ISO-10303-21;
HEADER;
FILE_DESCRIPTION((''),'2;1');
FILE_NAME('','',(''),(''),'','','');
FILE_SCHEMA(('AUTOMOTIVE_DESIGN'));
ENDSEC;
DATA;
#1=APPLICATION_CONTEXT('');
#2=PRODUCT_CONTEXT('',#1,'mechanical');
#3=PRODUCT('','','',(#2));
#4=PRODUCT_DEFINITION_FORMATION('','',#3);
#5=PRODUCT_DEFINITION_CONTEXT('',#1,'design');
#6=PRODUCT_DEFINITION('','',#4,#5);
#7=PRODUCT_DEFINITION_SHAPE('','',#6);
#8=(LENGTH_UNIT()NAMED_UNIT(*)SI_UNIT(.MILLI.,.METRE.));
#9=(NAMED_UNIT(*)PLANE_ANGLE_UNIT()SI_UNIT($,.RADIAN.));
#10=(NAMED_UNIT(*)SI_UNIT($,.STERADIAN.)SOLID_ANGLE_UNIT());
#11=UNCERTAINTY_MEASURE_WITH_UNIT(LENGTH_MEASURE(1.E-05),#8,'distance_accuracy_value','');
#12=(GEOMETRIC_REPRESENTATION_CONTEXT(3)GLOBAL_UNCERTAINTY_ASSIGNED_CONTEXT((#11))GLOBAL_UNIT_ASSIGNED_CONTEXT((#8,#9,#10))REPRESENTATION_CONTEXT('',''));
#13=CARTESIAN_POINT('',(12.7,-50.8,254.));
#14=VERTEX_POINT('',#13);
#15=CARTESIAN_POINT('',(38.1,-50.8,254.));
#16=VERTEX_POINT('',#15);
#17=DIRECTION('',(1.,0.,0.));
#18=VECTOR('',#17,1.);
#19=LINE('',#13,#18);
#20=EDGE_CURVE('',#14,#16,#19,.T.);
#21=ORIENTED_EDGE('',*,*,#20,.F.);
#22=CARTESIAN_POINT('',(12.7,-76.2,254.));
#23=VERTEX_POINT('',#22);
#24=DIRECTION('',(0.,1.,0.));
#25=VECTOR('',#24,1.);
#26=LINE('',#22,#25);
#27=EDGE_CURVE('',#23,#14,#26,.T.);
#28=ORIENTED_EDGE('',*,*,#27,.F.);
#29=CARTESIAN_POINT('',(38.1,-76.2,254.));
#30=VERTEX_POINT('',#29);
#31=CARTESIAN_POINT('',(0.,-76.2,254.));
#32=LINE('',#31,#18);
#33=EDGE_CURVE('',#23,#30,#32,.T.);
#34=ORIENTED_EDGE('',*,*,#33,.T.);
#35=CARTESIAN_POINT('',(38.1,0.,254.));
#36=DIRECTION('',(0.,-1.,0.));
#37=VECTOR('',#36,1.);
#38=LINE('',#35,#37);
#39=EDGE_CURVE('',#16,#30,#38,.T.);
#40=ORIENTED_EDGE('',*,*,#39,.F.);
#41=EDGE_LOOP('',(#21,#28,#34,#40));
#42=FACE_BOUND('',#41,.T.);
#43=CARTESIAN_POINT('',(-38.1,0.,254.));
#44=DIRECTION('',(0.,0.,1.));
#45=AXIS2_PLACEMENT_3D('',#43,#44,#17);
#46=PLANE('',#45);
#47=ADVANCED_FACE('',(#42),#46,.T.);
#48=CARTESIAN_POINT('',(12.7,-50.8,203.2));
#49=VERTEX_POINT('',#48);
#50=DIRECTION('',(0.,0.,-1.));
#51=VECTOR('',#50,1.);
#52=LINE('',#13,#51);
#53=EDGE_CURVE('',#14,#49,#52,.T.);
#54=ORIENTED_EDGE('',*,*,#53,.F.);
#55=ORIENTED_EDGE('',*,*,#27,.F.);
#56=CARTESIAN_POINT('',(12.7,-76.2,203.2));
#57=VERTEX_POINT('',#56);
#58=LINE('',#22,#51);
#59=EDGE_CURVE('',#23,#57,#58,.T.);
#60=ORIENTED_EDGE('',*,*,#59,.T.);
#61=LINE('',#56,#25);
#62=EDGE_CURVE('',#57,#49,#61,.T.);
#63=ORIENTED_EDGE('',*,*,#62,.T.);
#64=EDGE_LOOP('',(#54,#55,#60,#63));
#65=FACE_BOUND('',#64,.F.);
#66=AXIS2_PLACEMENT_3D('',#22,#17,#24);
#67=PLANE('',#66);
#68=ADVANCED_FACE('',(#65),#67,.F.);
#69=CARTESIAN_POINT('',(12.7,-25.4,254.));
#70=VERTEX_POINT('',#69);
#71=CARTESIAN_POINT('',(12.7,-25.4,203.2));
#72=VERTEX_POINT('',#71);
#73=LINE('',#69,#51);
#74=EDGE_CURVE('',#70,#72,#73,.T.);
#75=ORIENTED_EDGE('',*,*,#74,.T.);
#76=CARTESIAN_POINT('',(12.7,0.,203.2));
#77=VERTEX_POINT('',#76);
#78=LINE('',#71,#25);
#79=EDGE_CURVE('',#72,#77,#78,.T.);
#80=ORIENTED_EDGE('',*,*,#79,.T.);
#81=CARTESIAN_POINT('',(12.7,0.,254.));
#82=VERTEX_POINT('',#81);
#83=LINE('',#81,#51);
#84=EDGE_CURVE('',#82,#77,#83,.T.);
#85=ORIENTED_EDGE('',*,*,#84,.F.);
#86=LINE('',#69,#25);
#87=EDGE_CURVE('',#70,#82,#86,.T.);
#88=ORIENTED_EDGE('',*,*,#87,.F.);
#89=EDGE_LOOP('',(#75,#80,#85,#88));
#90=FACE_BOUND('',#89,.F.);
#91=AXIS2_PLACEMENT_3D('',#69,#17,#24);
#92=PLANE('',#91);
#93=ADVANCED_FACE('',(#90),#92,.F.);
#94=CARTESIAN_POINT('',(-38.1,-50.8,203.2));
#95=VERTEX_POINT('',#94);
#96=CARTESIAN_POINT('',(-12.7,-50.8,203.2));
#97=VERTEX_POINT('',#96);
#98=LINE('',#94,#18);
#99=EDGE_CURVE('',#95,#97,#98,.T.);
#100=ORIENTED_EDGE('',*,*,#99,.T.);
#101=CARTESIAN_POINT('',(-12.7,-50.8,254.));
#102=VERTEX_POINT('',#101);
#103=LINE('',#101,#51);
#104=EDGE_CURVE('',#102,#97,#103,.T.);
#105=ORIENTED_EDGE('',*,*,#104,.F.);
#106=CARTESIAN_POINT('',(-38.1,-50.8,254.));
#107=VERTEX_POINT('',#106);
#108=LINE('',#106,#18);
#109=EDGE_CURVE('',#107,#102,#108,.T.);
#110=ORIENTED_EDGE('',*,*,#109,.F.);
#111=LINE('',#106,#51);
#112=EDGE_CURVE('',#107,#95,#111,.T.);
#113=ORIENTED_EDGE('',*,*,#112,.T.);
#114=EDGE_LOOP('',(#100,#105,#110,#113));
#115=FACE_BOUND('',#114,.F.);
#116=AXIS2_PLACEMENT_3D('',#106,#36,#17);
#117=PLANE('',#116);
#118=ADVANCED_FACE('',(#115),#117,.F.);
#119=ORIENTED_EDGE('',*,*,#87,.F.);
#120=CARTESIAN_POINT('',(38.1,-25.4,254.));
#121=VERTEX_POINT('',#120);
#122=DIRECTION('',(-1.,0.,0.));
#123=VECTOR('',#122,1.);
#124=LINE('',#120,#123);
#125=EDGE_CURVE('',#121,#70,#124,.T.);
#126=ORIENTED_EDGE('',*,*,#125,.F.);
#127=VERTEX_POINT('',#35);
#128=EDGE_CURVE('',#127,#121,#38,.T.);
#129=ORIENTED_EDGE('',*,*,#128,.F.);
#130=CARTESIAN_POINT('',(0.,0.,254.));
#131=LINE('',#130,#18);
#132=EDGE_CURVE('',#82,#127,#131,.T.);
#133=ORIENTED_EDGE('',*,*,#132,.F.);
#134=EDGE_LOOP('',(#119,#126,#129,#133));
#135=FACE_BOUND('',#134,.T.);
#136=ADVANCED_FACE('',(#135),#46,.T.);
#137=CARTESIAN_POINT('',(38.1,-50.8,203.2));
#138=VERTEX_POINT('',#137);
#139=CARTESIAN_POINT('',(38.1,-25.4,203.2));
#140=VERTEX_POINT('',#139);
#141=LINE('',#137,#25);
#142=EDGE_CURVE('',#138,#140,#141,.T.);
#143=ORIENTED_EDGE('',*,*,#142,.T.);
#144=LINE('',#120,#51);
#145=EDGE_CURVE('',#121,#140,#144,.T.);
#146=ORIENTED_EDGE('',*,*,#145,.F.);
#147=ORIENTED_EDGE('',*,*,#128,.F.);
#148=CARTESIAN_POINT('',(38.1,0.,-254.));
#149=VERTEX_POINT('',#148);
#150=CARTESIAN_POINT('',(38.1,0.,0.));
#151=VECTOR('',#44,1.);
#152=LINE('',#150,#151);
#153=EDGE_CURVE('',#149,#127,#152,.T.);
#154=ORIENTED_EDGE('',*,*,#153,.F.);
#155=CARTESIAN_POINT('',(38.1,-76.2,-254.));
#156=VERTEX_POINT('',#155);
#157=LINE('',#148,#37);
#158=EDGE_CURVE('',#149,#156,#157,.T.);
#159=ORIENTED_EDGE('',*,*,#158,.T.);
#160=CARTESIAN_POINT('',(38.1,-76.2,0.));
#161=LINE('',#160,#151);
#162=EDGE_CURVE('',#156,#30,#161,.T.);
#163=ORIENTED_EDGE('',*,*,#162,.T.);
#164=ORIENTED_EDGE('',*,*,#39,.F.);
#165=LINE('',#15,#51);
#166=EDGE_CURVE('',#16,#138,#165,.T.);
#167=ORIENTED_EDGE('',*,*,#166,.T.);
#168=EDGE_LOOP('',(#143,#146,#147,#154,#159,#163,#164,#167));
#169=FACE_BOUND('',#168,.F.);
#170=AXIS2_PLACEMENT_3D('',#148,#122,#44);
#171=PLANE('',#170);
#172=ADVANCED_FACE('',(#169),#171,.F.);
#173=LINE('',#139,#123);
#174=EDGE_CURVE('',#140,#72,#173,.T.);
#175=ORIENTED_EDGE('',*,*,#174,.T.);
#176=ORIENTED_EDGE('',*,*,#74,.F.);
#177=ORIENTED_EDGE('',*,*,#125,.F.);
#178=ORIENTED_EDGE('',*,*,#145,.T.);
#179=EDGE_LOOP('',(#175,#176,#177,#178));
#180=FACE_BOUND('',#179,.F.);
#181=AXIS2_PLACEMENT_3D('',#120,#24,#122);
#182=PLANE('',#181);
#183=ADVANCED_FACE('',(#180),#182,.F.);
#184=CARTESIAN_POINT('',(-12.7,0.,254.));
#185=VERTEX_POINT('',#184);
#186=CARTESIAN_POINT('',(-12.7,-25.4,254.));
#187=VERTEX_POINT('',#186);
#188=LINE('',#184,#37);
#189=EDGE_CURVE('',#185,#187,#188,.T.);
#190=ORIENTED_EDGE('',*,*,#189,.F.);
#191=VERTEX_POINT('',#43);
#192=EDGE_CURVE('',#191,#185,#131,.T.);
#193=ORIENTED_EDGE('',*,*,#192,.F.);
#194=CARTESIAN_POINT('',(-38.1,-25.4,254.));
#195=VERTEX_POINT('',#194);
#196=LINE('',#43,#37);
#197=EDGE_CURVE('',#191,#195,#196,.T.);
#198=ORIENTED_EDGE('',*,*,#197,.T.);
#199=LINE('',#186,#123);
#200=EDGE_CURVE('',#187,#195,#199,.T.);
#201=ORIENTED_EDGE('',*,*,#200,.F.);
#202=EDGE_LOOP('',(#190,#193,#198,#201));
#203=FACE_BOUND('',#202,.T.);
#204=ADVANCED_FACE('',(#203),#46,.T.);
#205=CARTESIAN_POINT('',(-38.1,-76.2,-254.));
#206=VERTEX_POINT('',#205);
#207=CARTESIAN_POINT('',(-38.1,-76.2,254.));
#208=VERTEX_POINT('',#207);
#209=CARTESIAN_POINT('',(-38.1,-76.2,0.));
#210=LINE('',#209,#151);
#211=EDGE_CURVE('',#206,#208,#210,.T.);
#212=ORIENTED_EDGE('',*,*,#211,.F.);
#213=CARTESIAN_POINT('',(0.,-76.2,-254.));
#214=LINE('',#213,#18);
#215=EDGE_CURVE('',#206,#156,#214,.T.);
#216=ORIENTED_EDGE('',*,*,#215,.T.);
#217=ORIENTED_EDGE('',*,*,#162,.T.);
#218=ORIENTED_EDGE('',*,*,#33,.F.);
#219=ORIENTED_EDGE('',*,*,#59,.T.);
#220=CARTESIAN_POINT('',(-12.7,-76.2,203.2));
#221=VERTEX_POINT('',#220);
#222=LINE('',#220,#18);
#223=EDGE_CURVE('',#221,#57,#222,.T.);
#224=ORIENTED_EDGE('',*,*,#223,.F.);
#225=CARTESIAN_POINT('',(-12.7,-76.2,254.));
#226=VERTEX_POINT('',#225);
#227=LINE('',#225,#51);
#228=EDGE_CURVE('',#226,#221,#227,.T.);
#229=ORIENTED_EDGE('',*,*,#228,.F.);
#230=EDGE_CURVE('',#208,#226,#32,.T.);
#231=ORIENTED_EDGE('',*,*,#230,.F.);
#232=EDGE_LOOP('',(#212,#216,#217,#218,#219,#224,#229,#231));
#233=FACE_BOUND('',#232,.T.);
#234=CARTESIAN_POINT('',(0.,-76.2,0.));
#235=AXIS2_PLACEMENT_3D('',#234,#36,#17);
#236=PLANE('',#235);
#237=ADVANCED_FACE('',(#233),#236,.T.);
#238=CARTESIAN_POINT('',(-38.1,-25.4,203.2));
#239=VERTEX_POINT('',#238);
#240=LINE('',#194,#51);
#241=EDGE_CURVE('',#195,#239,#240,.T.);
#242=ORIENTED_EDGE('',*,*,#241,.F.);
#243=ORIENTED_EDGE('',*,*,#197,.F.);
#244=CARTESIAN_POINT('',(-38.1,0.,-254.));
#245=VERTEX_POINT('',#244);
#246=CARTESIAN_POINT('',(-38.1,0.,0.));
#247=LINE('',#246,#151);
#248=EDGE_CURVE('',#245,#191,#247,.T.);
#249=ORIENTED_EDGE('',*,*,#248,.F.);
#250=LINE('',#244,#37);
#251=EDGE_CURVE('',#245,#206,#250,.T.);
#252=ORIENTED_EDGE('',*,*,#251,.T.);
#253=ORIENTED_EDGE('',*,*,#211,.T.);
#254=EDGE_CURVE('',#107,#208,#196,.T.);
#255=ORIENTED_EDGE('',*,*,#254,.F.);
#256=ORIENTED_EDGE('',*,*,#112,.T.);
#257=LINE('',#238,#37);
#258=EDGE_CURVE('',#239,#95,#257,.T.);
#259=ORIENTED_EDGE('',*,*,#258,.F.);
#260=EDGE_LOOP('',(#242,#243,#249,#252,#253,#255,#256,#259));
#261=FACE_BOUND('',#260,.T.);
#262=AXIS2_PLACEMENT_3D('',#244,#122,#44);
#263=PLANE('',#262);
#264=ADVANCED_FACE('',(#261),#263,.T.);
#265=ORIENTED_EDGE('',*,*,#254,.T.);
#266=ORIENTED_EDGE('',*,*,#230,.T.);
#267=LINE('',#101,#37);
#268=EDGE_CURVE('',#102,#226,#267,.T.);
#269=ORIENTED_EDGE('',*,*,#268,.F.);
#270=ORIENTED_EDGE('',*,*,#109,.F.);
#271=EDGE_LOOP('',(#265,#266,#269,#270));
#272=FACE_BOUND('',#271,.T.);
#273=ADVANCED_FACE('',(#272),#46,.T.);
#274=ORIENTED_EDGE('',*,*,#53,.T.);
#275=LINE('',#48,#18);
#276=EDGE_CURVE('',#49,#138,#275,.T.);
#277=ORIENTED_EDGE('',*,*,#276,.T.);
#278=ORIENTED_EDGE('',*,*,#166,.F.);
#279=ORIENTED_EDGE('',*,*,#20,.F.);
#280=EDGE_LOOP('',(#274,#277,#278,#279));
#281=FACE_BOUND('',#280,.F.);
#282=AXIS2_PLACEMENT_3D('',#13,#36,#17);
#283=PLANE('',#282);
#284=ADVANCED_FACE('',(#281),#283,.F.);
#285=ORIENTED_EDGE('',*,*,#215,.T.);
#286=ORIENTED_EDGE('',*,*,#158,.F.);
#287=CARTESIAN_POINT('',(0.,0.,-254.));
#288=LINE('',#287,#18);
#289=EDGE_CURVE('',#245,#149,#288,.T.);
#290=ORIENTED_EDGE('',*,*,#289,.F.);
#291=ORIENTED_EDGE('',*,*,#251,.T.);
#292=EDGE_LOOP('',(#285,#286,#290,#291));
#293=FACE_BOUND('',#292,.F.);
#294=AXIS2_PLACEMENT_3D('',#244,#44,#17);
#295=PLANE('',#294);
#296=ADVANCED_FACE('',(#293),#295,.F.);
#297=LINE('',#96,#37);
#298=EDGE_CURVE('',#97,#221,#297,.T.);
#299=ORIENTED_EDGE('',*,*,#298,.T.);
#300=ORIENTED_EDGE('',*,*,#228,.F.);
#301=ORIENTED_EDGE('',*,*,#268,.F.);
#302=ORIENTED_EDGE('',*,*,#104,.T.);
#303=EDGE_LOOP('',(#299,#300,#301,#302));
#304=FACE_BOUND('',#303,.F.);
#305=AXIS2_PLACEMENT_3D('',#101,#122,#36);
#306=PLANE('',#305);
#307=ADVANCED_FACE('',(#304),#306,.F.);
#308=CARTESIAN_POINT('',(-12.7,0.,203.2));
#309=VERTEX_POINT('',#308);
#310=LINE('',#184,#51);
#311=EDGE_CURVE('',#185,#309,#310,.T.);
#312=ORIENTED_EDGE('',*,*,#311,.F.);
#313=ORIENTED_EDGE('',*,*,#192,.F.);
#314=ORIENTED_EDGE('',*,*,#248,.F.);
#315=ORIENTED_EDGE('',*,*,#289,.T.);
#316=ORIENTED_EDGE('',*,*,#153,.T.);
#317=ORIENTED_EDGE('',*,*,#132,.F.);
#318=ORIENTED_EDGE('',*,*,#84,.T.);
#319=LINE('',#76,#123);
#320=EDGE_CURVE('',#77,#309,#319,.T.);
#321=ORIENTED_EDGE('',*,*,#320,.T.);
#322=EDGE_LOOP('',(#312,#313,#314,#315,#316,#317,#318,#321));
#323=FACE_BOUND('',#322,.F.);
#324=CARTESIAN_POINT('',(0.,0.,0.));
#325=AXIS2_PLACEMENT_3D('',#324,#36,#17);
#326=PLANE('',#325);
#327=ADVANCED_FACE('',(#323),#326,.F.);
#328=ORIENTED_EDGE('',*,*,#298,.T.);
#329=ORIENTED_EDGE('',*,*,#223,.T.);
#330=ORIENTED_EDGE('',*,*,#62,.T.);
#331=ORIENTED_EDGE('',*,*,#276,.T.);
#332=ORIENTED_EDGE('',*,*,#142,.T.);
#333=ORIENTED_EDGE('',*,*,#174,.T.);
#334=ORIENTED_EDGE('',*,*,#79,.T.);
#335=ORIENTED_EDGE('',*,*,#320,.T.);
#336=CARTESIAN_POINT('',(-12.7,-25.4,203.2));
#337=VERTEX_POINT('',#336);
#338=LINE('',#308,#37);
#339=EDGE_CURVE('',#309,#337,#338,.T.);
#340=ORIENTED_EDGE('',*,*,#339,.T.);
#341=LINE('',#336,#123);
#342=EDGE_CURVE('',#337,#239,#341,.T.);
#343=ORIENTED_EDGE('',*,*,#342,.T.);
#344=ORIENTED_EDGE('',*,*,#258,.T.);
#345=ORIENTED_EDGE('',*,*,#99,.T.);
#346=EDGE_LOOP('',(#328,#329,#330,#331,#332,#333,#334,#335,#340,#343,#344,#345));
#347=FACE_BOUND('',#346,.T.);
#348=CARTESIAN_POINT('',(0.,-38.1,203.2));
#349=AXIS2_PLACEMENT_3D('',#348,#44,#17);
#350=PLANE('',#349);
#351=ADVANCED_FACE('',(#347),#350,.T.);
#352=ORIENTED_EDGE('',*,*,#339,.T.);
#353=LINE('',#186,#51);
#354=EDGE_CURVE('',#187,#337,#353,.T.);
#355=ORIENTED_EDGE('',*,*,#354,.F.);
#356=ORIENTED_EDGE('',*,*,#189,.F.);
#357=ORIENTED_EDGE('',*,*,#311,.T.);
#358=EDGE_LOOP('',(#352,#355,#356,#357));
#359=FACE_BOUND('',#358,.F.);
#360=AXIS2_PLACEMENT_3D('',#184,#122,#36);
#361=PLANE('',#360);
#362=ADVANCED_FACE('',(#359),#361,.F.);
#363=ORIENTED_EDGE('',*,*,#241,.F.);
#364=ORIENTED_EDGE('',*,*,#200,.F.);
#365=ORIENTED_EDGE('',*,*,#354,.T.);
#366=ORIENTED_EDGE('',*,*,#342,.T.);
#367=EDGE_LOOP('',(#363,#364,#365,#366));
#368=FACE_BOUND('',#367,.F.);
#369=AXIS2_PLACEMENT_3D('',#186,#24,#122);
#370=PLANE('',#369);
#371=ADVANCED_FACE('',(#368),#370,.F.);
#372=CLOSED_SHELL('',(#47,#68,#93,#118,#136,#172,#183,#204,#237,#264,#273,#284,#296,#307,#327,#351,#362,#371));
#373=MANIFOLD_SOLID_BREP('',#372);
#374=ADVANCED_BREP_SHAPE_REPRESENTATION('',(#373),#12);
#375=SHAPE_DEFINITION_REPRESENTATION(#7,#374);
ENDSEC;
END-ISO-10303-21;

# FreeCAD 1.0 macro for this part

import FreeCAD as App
import Part
import Sketcher
from FreeCAD import Vector
Q = App.Units.Quantity


def add_polygon(sketch, points):
    """Adds a closed chain of lines whose ends are joined by coincident constraints."""
    first, n = sketch.GeometryCount, len(points)
    for a, b in zip(points, points[1:] + points[:1]):
        sketch.addGeometry(Part.LineSegment(App.Vector(*a, 0), App.Vector(*b, 0)), False)
    for i in range(n):
        sketch.addConstraint(Sketcher.Constraint("Coincident", first + i, 2, first + (i + 1) % n, 1))

doc = App.newDocument("Part")
params = doc.addObject("Spreadsheet::Sheet", "Params")
for row, (alias, value) in enumerate([
    ("sketch1_width", "3 in"),
    ("sketch1_height", "20 in"),
    ("pad1_length", "3 in"),
    ("sketch2_width", "1 in"),
    ("pocket1_length", "2 in"),
], start=1):
    params.set(f"A{row}", alias)
    params.set(f"B{row}", "=" + value)
    params.setAlias(f"B{row}", alias)

body = doc.addObject("PartDesign::Body", "Body")

# Sketch on XZ plane
sketch1 = body.newObject("Sketcher::SketchObject", "Sketch")
sketch1.AttachmentSupport = (doc.getObject("XZ_Plane"), [""])
sketch1.MapMode = "FlatFace"
add_polygon(sketch1, [(-38, 254), (-38, -254), (38, -254), (38, 254)])  # lines 0-3
sketch1.addConstraint([
    Sketcher.Constraint("Vertical", 0),
    Sketcher.Constraint("Horizontal", 1),
    Sketcher.Constraint("Vertical", 2),
    Sketcher.Constraint("Horizontal", 3),
    Sketcher.Constraint("Symmetric", 0, 2, 2, 2, -1, 1),
    Sketcher.Constraint("DistanceX", 1, 1, 1, 2, Q("3 in")),
    Sketcher.Constraint("DistanceY", 0, 2, 0, 1, Q("20 in")),
])
sketch1.setExpression("Constraints[9]", "Params.sketch1_width")
sketch1.setExpression("Constraints[10]", "Params.sketch1_height")
pad1 = body.newObject("PartDesign::Pad", "Pad")
pad1.Profile = sketch1
pad1.setExpression("Length", "Params.pad1_length")

# Sketch on XY plane
sketch2 = body.newObject("Sketcher::SketchObject", "Sketch001")
sketch2.AttachmentSupport = (doc.getObject("XY_Plane"), [""])
sketch2.MapMode = "FlatFace"
sketch2.AttachmentOffset = App.Placement(Vector(0, 0, 10 * 25.4), App.Rotation())
add_polygon(sketch2, [(13, 0), (-13, 0), (-13, -25), (-38, -25), (-38, -51), (-13, -51), (-13, -76), (13, -76), (13, -51), (38, -51), (38, -25), (13, -25)])  # lines 0-11
sketch2.addConstraint([
    Sketcher.Constraint("Horizontal", 0),
    Sketcher.Constraint("Vertical", 1),
    Sketcher.Constraint("Horizontal", 2),
    Sketcher.Constraint("Vertical", 3),
    Sketcher.Constraint("Horizontal", 4),
    Sketcher.Constraint("Vertical", 5),
    Sketcher.Constraint("Horizontal", 6),
    Sketcher.Constraint("Vertical", 7),
    Sketcher.Constraint("Horizontal", 8),
    Sketcher.Constraint("Vertical", 9),
    Sketcher.Constraint("Horizontal", 10),
    Sketcher.Constraint("Vertical", 11),
    Sketcher.Constraint("Symmetric", 0, 2, 11, 2, -1, 1),
    Sketcher.Constraint("Symmetric", 4, 2, 7, 2, -2),
    Sketcher.Constraint("Symmetric", 2, 2, 9, 2, -2),
    Sketcher.Constraint("Vertical", 1, 2, 4, 2),
    Sketcher.Constraint("Equal", 0, 2),
    Sketcher.Constraint("Equal", 10, 1),
    Sketcher.Constraint("Equal", 1, 3),
    Sketcher.Constraint("Equal", 3, 5),
    Sketcher.Constraint("DistanceX", 0, 2, 0, 1, Q("1 in")),
])
sketch2.setExpression("Constraints[32]", "Params.sketch2_width")
pocket1 = body.newObject("PartDesign::Pocket", "Pocket")
pocket1.Profile = sketch2
pocket1.setExpression("Length", "Params.pocket1_length")

doc.recompute()
